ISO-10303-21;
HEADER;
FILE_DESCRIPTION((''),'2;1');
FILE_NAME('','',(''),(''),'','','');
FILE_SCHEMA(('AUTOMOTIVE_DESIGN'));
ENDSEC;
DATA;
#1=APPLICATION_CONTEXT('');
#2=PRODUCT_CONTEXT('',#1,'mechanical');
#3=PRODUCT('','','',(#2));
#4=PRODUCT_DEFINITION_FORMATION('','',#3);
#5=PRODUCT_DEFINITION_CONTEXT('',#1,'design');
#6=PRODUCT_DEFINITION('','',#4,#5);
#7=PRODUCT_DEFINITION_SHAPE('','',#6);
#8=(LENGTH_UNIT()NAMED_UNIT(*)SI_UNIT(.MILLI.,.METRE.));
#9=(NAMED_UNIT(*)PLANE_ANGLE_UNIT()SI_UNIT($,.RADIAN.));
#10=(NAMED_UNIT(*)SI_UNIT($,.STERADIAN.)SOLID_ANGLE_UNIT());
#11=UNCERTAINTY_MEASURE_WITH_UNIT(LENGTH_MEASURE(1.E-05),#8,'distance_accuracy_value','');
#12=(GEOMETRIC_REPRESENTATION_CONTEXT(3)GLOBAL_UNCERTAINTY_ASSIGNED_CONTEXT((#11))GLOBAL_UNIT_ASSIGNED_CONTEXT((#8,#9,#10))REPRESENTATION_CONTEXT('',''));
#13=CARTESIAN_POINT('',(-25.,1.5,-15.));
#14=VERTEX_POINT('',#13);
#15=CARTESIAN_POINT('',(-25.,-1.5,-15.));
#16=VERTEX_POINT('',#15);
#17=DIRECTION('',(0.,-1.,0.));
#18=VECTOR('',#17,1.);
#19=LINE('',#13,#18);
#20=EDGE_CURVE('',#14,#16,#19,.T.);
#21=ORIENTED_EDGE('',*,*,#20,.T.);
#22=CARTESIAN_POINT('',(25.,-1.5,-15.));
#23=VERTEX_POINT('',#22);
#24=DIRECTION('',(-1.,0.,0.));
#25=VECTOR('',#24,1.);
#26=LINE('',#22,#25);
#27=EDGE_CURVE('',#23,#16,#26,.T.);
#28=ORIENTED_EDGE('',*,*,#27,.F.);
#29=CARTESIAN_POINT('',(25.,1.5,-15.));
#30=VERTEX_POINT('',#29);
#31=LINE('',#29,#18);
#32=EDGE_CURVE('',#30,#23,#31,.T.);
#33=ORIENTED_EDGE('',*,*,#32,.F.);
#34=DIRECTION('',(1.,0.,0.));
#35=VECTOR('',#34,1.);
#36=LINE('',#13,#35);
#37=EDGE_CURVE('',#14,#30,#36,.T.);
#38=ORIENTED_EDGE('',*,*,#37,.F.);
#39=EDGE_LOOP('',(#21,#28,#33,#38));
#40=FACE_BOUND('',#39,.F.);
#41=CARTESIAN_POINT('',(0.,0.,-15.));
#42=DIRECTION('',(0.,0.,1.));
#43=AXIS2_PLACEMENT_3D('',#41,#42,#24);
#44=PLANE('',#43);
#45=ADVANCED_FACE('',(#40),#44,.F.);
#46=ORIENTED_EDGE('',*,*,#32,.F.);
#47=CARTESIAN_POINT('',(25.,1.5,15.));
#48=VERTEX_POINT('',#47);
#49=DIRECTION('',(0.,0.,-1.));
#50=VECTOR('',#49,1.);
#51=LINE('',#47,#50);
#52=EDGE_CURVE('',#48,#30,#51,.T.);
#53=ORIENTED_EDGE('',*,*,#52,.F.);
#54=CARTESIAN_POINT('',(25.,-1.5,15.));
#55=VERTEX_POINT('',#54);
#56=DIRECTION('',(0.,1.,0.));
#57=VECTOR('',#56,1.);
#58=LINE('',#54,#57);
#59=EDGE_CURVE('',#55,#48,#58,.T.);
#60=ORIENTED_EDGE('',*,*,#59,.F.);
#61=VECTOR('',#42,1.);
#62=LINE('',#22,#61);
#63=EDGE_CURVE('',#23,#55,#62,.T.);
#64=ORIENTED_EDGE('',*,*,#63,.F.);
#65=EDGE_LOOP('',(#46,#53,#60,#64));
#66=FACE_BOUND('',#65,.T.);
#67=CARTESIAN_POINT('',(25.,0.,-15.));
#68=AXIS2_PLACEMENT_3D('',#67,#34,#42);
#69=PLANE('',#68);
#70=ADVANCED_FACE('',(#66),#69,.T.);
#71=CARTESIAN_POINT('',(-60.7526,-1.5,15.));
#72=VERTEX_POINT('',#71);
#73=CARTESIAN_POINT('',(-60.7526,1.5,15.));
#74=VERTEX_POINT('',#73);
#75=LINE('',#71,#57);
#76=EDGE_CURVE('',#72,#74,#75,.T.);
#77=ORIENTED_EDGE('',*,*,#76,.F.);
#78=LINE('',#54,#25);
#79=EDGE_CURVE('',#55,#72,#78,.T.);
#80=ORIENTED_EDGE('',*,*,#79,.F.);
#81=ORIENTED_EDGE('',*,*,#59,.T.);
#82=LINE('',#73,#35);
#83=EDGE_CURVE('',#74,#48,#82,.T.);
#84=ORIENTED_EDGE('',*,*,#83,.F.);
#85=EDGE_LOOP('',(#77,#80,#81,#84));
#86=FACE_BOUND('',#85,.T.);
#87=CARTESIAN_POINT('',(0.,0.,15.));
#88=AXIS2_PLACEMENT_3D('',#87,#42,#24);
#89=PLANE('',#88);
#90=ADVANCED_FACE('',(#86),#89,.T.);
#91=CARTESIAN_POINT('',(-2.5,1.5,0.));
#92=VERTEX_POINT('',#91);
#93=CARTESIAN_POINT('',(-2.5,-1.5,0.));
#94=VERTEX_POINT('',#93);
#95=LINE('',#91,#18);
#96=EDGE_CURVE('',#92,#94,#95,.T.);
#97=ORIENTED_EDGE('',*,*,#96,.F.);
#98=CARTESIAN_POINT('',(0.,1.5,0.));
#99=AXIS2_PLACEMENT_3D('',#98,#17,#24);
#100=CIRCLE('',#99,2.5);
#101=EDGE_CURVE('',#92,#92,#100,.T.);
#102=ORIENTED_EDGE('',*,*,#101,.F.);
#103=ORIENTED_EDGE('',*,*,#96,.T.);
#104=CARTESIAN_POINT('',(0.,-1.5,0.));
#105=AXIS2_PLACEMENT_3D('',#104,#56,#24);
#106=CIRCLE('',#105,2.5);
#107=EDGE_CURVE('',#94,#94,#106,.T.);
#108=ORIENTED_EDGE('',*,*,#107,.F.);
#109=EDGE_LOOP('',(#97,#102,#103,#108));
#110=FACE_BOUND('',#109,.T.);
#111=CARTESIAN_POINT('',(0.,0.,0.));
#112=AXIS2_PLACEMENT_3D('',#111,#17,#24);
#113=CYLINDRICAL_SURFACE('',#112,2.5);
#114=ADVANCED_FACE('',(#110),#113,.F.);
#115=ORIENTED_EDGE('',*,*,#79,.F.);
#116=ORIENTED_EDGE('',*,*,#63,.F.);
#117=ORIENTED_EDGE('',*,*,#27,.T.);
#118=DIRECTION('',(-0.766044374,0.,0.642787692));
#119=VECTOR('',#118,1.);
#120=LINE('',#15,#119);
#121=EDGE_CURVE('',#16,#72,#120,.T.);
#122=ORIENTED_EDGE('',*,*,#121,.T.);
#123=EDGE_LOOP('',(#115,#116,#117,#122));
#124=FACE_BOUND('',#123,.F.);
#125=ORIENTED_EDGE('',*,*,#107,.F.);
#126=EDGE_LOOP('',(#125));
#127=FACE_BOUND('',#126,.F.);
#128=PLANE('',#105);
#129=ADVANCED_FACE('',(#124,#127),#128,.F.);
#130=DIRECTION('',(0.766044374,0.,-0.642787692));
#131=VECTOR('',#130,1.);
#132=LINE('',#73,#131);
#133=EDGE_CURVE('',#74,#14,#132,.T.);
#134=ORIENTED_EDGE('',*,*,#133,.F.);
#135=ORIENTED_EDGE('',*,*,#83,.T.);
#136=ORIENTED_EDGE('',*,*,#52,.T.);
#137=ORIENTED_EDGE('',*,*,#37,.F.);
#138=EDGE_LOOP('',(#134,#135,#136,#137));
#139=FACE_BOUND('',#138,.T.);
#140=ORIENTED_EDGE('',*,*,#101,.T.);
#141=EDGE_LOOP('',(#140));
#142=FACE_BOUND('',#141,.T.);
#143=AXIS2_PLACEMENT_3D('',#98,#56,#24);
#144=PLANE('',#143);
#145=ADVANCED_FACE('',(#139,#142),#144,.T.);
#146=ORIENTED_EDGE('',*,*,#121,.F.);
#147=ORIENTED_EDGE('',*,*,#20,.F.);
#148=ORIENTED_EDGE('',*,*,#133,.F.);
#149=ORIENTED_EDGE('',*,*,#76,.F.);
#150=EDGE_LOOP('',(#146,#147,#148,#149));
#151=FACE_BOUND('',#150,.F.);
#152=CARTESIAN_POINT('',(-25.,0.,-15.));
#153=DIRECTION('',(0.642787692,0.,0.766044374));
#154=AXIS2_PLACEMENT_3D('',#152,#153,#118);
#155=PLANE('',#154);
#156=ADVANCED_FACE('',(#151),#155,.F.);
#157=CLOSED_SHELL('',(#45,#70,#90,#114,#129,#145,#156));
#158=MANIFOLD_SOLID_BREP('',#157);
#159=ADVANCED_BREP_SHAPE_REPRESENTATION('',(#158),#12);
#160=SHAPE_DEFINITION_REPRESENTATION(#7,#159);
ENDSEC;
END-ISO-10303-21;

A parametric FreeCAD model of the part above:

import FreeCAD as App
import Part
import Sketcher
from FreeCAD import Vector
Q = App.Units.Quantity


def add_polygon(sketch, points):
    """Adds a closed chain of lines whose ends are joined by coincident constraints."""
    first, n = sketch.GeometryCount, len(points)
    for a, b in zip(points, points[1:] + points[:1]):
        sketch.addGeometry(Part.LineSegment(App.Vector(*a, 0), App.Vector(*b, 0)), False)
    for i in range(n):
        sketch.addConstraint(Sketcher.Constraint("Coincident", first + i, 2, first + (i + 1) % n, 1))

doc = App.newDocument("Part")
params = doc.addObject("Spreadsheet::Sheet", "Params")
for row, (alias, value) in enumerate([
    ("sketch1_diameter", "5 mm"),
    ("sketch1_width", "50 mm"),
    ("pad1_length", "3 mm"),
], start=1):
    params.set(f"A{row}", alias)
    params.set(f"B{row}", "=" + value)
    params.setAlias(f"B{row}", alias)

body = doc.addObject("PartDesign::Body", "Body")

sketch1 = doc.addObject("Sketcher::SketchObject", "Sketch")
body.addObject(sketch1)
sketch1.AttachmentSupport = (doc.XZ_Plane, [""])
sketch1.MapMode = "FlatFace"
add_polygon(sketch1, [(-25, -15), (-60.8, 15), (25, 15), (25, -15)])
sketch1.addGeometry(Part.Circle(Vector(0, 0, 0), Vector(0, 0, 1), 2.5), False)
sketch1.addConstraint(Sketcher.Constraint("Horizontal", 1))
sketch1.addConstraint(Sketcher.Constraint("Vertical", 2))
sketch1.addConstraint(Sketcher.Constraint("Horizontal", 3))
sketch1.addConstraint(Sketcher.Constraint("Coincident", 4, 3, -1, 1))
sketch1.addConstraint(Sketcher.Constraint("Symmetric", 1, 2, 3, 2, -1, 1))
sketch1.addConstraint(Sketcher.Constraint("Diameter", 4, 5.0))
sketch1.addConstraint(Sketcher.Constraint("DistanceX", 3, 2, 3, 1, 50.0))
sketch1.addConstraint(Sketcher.Constraint("DistanceY", -1, 1, 0, 2, 15.0))
sketch1.addConstraint(Sketcher.Constraint("Angle", 0, Q("140 deg")))
sketch1.setExpression("Constraints[9]", "Params.sketch1_diameter")
sketch1.setExpression("Constraints[10]", "Params.sketch1_width")
pad1 = doc.addObject("PartDesign::Pad", "Pad")
body.addObject(pad1)
pad1.Profile = sketch1
pad1.setExpression("Length", "Params.pad1_length")
pad1.Midplane = True

doc.recompute()
